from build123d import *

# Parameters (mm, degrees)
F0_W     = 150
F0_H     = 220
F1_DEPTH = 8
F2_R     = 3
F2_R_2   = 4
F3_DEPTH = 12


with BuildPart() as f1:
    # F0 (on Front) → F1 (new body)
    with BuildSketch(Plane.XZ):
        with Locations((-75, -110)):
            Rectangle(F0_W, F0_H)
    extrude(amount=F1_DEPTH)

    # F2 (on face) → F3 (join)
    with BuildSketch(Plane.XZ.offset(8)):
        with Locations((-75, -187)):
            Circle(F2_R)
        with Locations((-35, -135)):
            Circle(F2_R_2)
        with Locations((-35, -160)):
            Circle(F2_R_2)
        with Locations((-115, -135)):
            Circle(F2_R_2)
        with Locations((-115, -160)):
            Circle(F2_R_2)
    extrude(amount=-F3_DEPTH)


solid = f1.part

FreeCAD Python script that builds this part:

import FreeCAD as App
import Part
import Sketcher

doc = App.newDocument("Part")
body = doc.addObject("PartDesign::Body", "Body")

# Sketch on XZ plane
sketch1 = body.newObject("Sketcher::SketchObject", "Sketch")
sketch1.AttachmentSupport = (doc.getObject("XZ_Plane"), [""])
sketch1.MapMode = "FlatFace"
sketch1.addGeometry([
    Part.LineSegment(App.Vector(-150, 0, 0), App.Vector(-150, -220, 0)),
    Part.LineSegment(App.Vector(-150, -220, 0), App.Vector(0, -220, 0)),
    Part.LineSegment(App.Vector(0, -220, 0), App.Vector(0, 0, 0)),
    Part.LineSegment(App.Vector(0, 0, 0), App.Vector(-150, 0, 0)),
], False)
sketch1.addConstraint([
    Sketcher.Constraint("Coincident", 0, 2, 1, 1),
    Sketcher.Constraint("Coincident", 1, 2, 2, 1),
    Sketcher.Constraint("Coincident", 2, 2, 3, 1),
    Sketcher.Constraint("Coincident", 3, 2, 0, 1),
    Sketcher.Constraint("Vertical", 0),
    Sketcher.Constraint("Horizontal", 1),
    Sketcher.Constraint("Vertical", 2),
    Sketcher.Constraint("Horizontal", 3),
    Sketcher.Constraint("Coincident", 2, 2, -1, 1),
    Sketcher.Constraint("DistanceX", 1, 1, 1, 2, 150.0),
    Sketcher.Constraint("DistanceY", 0, 2, 0, 1, 220.0),
])
pad1 = body.newObject("PartDesign::Pad", "Pad")
pad1.Profile = sketch1
pad1.Length = 8

# Sketch on XZ plane
sketch2 = body.newObject("Sketcher::SketchObject", "Sketch001")
sketch2.AttachmentSupport = (doc.getObject("XZ_Plane"), [""])
sketch2.MapMode = "FlatFace"
sketch2.AttachmentOffset = App.Placement(App.Vector(0, 0, 8), App.Rotation())
sketch2.addGeometry([
    Part.Circle(App.Vector(-75, -187, 0), App.Vector(0, 0, 1), 3),  # 0
    Part.Circle(App.Vector(-35, -135, 0), App.Vector(0, 0, 1), 4),  # 1
    Part.Circle(App.Vector(-35, -160, 0), App.Vector(0, 0, 1), 4),  # 2
    Part.Circle(App.Vector(-115, -135, 0), App.Vector(0, 0, 1), 4),  # 3
    Part.Circle(App.Vector(-115, -160, 0), App.Vector(0, 0, 1), 4),  # 4
], False)
sketch2.addConstraint([
    Sketcher.Constraint("Equal", 1, 2),
    Sketcher.Constraint("Equal", 2, 3),
    Sketcher.Constraint("Equal", 3, 4),
    Sketcher.Constraint("Horizontal", 1, 3, 3, 3),
    Sketcher.Constraint("Horizontal", 2, 3, 4, 3),
    Sketcher.Constraint("Vertical", 1, 3, 2, 3),
    Sketcher.Constraint("Vertical", 3, 3, 4, 3),
    Sketcher.Constraint("Diameter", 0, 6.0),
    Sketcher.Constraint("Diameter", 1, 8.0),
    Sketcher.Constraint("DistanceX", 0, 3, -1, 1, 75.0),
    Sketcher.Constraint("DistanceY", 0, 3, -1, 1, 187.0),
    Sketcher.Constraint("DistanceX", 1, 3, -1, 1, 35.0),
    Sketcher.Constraint("DistanceY", 1, 3, -1, 1, 135.0),
    Sketcher.Constraint("DistanceY", 2, 3, -1, 1, 160.0),
    Sketcher.Constraint("DistanceX", 3, 3, -1, 1, 115.0),
])
pad2 = body.newObject("PartDesign::Pad", "Pad001")
pad2.Profile = sketch2
pad2.Length = 12
pad2.Reversed = True

doc.recompute()
